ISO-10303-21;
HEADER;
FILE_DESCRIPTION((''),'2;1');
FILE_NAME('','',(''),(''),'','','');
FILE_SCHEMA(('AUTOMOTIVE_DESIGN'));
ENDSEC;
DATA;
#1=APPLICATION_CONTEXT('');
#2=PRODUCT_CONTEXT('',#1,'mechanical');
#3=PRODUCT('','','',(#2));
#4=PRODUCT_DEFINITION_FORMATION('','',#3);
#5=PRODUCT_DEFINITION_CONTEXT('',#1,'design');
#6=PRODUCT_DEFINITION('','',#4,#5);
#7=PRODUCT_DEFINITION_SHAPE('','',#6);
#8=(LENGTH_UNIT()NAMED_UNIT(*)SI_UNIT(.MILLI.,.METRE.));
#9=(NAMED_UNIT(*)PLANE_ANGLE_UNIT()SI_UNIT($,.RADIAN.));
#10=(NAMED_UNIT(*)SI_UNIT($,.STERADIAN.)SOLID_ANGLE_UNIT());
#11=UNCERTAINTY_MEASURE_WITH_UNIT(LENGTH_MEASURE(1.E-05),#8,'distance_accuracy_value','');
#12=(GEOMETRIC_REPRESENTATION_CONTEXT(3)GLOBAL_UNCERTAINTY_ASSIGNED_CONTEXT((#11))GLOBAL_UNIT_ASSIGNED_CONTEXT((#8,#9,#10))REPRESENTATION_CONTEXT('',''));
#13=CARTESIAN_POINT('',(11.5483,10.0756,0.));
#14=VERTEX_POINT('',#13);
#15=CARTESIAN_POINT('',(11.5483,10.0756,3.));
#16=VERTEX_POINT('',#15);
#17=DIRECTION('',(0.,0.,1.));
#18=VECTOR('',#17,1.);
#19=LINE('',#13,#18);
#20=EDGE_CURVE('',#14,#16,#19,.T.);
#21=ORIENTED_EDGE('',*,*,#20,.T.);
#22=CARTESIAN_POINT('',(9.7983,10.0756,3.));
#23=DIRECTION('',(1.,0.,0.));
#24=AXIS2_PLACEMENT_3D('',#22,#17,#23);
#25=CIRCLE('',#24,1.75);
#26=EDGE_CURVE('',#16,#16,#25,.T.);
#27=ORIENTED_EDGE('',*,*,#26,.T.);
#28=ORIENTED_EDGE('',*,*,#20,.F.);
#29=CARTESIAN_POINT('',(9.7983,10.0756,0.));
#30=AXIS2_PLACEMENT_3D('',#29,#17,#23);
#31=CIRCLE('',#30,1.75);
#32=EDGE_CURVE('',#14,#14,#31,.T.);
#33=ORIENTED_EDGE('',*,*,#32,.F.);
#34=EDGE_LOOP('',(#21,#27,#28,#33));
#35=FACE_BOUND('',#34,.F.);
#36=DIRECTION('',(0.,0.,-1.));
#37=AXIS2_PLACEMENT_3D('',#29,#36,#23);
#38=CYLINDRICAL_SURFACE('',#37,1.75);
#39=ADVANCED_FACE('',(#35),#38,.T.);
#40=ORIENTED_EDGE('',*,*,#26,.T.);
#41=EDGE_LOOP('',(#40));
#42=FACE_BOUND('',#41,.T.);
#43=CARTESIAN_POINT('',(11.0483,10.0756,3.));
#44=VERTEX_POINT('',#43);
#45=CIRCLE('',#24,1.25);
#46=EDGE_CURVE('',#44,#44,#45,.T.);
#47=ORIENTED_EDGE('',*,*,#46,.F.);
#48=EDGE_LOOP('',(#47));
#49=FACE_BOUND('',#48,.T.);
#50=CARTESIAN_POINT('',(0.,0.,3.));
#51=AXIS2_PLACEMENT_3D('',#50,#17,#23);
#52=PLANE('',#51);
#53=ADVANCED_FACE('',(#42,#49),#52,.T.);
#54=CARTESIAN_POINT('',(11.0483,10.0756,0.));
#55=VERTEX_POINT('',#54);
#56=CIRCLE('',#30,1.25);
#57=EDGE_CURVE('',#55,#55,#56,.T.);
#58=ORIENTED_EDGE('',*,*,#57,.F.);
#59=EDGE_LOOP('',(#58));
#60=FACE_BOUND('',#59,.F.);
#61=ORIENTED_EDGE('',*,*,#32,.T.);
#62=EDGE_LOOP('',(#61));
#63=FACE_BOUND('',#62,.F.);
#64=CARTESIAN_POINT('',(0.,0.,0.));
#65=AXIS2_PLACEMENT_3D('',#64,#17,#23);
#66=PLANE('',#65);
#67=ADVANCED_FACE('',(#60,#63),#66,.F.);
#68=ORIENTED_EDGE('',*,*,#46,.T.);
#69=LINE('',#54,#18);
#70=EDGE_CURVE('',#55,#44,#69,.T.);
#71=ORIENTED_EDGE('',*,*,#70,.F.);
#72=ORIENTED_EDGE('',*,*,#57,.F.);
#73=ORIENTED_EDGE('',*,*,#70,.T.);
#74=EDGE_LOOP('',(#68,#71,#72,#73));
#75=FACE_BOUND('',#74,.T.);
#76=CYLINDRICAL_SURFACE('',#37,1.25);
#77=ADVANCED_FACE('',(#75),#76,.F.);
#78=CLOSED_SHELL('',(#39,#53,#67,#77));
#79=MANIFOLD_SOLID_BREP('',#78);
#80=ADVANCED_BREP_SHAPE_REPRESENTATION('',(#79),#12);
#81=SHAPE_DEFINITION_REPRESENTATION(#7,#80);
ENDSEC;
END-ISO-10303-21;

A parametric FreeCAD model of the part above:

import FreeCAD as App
import Part
import Sketcher
Q = App.Units.Quantity

doc = App.newDocument("Part")
body = doc.addObject("PartDesign::Body", "Body")

# Sketch on XY plane
sketch1 = body.newObject("Sketcher::SketchObject", "Sketch")
sketch1.AttachmentSupport = (doc.getObject("XY_Plane"), [""])
sketch1.MapMode = "FlatFace"
sketch1.addGeometry(Part.Circle(App.Vector(9.7983, 10.0756, 0), App.Vector(0, 0, 1), 1.75), False)
sketch1.addGeometry(Part.Circle(App.Vector(9.7983, 10.0756, 0), App.Vector(0, 0, 1), 1.25), False)
sketch1.addConstraint(Sketcher.Constraint("Coincident", 1, 3, 0, 3))
sketch1.addConstraint(Sketcher.Constraint("Diameter", 0, Q("3.5 mm")))
sketch1.addConstraint(Sketcher.Constraint("Diameter", 1, Q("2.5 mm")))
sketch1.addConstraint(Sketcher.Constraint("DistanceX", -1, 1, 0, 3, Q("9.7983 mm")))
sketch1.addConstraint(Sketcher.Constraint("DistanceY", -1, 1, 0, 3, Q("10.0756 mm")))
pad1 = body.newObject("PartDesign::Pad", "Pad")
pad1.Profile = sketch1
pad1.Length = 3

doc.recompute()
